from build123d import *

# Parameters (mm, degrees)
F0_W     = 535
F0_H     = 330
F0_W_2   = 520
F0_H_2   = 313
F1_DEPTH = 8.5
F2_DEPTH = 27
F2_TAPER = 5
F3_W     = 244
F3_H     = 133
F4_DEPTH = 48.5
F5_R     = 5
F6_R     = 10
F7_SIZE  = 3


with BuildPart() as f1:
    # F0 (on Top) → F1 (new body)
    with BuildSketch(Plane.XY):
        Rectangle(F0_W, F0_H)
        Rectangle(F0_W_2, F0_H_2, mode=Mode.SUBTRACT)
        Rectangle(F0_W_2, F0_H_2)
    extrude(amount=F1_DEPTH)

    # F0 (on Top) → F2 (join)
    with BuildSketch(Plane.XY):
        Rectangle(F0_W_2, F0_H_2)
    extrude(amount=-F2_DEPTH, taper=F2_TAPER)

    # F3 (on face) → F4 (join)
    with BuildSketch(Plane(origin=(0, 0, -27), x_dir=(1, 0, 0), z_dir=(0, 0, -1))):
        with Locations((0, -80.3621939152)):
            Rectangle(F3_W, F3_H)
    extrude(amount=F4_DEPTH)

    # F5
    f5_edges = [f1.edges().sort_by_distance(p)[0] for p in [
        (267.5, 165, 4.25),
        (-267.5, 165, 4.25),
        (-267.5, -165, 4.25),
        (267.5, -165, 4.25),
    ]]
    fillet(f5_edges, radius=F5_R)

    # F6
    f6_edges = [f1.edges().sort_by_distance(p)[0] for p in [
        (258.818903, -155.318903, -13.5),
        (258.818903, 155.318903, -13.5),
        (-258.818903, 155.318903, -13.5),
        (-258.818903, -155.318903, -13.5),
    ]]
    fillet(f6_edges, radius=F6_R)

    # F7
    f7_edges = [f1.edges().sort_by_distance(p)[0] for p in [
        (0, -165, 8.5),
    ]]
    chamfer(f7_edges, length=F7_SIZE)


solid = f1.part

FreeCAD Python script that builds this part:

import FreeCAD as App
import Part
import Sketcher

V = App.Vector
Q = App.Units.Quantity


def edges_at(feature, points):
    """Names of the edges that pass closest to the given points."""
    edges = feature.Shape.Edges
    near = lambda p: min(range(len(edges)), key=lambda i: edges[i].distToShape(Part.Vertex(*p))[0])
    return sorted({f"Edge{near(p) + 1}" for p in points})

doc = App.newDocument("Part")
body = doc.addObject("PartDesign::Body", "Body")

# Sketch on XY plane
sketch1 = doc.addObject("Sketcher::SketchObject", "Sketch")
body.addObject(sketch1)
sketch1.AttachmentSupport = (doc.XY_Plane, [""])
sketch1.MapMode = "FlatFace"
sketch1.addGeometry([
    Part.LineSegment(V(-267.5, 165, 0), V(-267.5, -165, 0)),
    Part.LineSegment(V(-267.5, -165, 0), V(267.5, -165, 0)),
    Part.LineSegment(V(267.5, -165, 0), V(267.5, 165, 0)),
    Part.LineSegment(V(267.5, 165, 0), V(-267.5, 165, 0)),
], False)
sketch1.addConstraint([
    Sketcher.Constraint("Coincident", 0, 2, 1, 1),
    Sketcher.Constraint("Coincident", 1, 2, 2, 1),
    Sketcher.Constraint("Coincident", 2, 2, 3, 1),
    Sketcher.Constraint("Coincident", 3, 2, 0, 1),
    Sketcher.Constraint("Vertical", 0),
    Sketcher.Constraint("Horizontal", 1),
    Sketcher.Constraint("Vertical", 2),
    Sketcher.Constraint("Horizontal", 3),
    Sketcher.Constraint("Symmetric", 0, 2, 2, 2, -1, 1),
    Sketcher.Constraint("DistanceX", 1, 1, 1, 2, Q("535 mm")),
    Sketcher.Constraint("DistanceY", 0, 2, 0, 1, Q("330 mm")),
])
pad1 = doc.addObject("PartDesign::Pad", "Pad")
body.addObject(pad1)
pad1.Profile = sketch1
pad1.Length = 8.5

# Sketch on XY plane
sketch2 = doc.addObject("Sketcher::SketchObject", "Sketch001")
body.addObject(sketch2)
sketch2.AttachmentSupport = (doc.XY_Plane, [""])
sketch2.MapMode = "FlatFace"
sketch2.addGeometry([
    Part.LineSegment(V(-260, 156.5, 0), V(-260, -156.5, 0)),
    Part.LineSegment(V(-260, -156.5, 0), V(260, -156.5, 0)),
    Part.LineSegment(V(260, -156.5, 0), V(260, 156.5, 0)),
    Part.LineSegment(V(260, 156.5, 0), V(-260, 156.5, 0)),
], False)
sketch2.addConstraint([
    Sketcher.Constraint("Coincident", 0, 2, 1, 1),
    Sketcher.Constraint("Coincident", 1, 2, 2, 1),
    Sketcher.Constraint("Coincident", 2, 2, 3, 1),
    Sketcher.Constraint("Coincident", 3, 2, 0, 1),
    Sketcher.Constraint("Vertical", 0),
    Sketcher.Constraint("Horizontal", 1),
    Sketcher.Constraint("Vertical", 2),
    Sketcher.Constraint("Horizontal", 3),
    Sketcher.Constraint("Symmetric", 0, 2, 2, 2, -1, 1),
    Sketcher.Constraint("DistanceX", 1, 1, 1, 2, Q("520 mm")),
    Sketcher.Constraint("DistanceY", 0, 2, 0, 1, Q("313 mm")),
])
pad2 = doc.addObject("PartDesign::Pad", "Pad001")
body.addObject(pad2)
pad2.Profile = sketch2
pad2.Length = 27
pad2.Reversed = True
pad2.TaperAngle = -5

# Sketch on XY plane
sketch3 = doc.addObject("Sketcher::SketchObject", "Sketch002")
body.addObject(sketch3)
sketch3.AttachmentSupport = (doc.XY_Plane, [""])
sketch3.MapMode = "FlatFace"
sketch3.AttachmentOffset = App.Placement(V(0, 0, -27), App.Rotation())
sketch3.addGeometry([
    Part.LineSegment(V(-122, 13.862194, 0), V(-122, 146.862194, 0)),
    Part.LineSegment(V(-122, 146.862194, 0), V(122, 146.862194, 0)),
    Part.LineSegment(V(122, 146.862194, 0), V(122, 13.862194, 0)),
    Part.LineSegment(V(122, 13.862194, 0), V(-122, 13.862194, 0)),
], False)
sketch3.addConstraint([
    Sketcher.Constraint("Coincident", 0, 2, 1, 1),
    Sketcher.Constraint("Coincident", 1, 2, 2, 1),
    Sketcher.Constraint("Coincident", 2, 2, 3, 1),
    Sketcher.Constraint("Coincident", 3, 2, 0, 1),
    Sketcher.Constraint("Vertical", 0),
    Sketcher.Constraint("Horizontal", 1),
    Sketcher.Constraint("Vertical", 2),
    Sketcher.Constraint("Horizontal", 3),
    Sketcher.Constraint("DistanceX", 1, 1, 1, 2, Q("244 mm")),
    Sketcher.Constraint("DistanceY", 0, 1, 0, 2, Q("133 mm")),
    Sketcher.Constraint("DistanceX", 0, 2, -1, 1, Q("122 mm")),
    Sketcher.Constraint("DistanceY", -1, 1, 0, 2, Q("146.862194 mm")),
])
pad3 = doc.addObject("PartDesign::Pad", "Pad002")
body.addObject(pad3)
pad3.Profile = sketch3
pad3.Length = 48.5
pad3.Reversed = True
doc.recompute()

fillet = doc.addObject("PartDesign::Fillet", "Fillet")
body.addObject(fillet)
fillet.Base = (pad3, edges_at(pad3, [
    (267.5, 165, 4.25),
    (-267.5, 165, 4.25),
    (-267.5, -165, 4.25),
    (267.5, -165, 4.25),
]))
fillet.Radius = 5
doc.recompute()

fillet2 = doc.addObject("PartDesign::Fillet", "Fillet001")
body.addObject(fillet2)
fillet2.Base = (fillet, edges_at(fillet, [
    (258.819, -155.319, -13.5),
    (258.819, 155.319, -13.5),
    (-258.819, 155.319, -13.5),
    (-258.819, -155.319, -13.5),
]))
fillet2.Radius = 10
doc.recompute()

chamfer = doc.addObject("PartDesign::Chamfer", "Chamfer")
body.addObject(chamfer)
chamfer.Base = (fillet2, edges_at(fillet2, [(0, -165, 8.5)]))
chamfer.Size = 3

doc.recompute()
